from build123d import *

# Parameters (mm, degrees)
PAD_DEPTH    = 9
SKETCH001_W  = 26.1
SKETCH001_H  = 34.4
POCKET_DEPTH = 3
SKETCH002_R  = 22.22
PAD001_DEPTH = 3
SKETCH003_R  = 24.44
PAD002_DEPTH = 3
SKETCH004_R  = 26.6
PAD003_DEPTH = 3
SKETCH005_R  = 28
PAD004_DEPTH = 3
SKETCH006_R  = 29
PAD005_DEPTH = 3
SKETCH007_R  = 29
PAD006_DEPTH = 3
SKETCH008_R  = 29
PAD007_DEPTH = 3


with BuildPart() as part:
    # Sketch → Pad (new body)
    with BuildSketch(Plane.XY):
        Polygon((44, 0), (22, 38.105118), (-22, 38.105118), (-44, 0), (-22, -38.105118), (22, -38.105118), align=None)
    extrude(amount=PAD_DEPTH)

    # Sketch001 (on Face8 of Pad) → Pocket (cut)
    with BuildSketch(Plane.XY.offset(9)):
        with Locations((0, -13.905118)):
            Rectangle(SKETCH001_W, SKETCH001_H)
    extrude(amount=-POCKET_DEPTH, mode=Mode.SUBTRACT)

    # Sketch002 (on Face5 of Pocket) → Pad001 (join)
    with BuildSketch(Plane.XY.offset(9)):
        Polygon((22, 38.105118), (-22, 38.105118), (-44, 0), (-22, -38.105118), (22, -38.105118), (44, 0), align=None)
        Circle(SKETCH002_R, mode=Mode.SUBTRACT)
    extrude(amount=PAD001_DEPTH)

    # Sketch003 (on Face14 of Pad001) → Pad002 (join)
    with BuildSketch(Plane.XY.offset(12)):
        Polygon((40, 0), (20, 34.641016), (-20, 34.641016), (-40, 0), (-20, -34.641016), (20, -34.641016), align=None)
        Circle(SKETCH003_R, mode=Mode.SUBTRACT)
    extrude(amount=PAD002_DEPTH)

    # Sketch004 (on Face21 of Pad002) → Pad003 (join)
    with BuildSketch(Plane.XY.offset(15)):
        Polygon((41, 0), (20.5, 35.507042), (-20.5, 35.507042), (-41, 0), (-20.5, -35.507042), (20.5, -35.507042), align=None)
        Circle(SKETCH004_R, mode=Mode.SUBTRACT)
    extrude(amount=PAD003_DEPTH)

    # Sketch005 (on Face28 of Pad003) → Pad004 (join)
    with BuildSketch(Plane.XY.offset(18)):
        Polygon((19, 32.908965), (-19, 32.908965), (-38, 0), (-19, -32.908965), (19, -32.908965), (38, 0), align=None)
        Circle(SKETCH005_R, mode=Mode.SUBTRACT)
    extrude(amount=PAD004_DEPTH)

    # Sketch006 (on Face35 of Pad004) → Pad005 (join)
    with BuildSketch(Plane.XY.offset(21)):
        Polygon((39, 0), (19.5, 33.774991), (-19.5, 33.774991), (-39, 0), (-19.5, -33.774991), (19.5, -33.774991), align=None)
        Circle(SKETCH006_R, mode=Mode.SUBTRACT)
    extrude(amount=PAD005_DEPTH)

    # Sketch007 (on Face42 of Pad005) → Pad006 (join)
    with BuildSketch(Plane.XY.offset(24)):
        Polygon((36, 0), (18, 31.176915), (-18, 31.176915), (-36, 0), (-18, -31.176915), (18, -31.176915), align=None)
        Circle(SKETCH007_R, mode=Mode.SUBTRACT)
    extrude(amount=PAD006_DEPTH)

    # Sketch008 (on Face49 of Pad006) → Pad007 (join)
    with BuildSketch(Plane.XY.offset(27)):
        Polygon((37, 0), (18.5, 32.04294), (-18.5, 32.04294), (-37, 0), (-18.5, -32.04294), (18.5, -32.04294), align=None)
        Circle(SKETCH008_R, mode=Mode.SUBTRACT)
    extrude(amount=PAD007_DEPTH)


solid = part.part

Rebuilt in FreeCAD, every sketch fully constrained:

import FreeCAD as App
import Part
import Sketcher
from FreeCAD import Vector
Q = App.Units.Quantity


def add_polygon(sketch, points):
    """Adds a closed chain of lines whose ends are joined by coincident constraints."""
    first, n = sketch.GeometryCount, len(points)
    for a, b in zip(points, points[1:] + points[:1]):
        sketch.addGeometry(Part.LineSegment(App.Vector(*a, 0), App.Vector(*b, 0)), False)
    for i in range(n):
        sketch.addConstraint(Sketcher.Constraint("Coincident", first + i, 2, first + (i + 1) % n, 1))

doc = App.newDocument("Part")
body = doc.addObject("PartDesign::Body", "Body")

# Sketch on XY plane
sketch1 = body.newObject("Sketcher::SketchObject", "Sketch")
sketch1.AttachmentSupport = (doc.getObject("XY_Plane"), [""])
sketch1.MapMode = "FlatFace"
add_polygon(sketch1, [(44, 0), (22, 38.105118), (-22, 38.105118), (-44, 0), (-22, -38.105118), (22, -38.105118)])  # lines 0-5
sketch1.addConstraint([
    Sketcher.Constraint("Horizontal", 1),
    Sketcher.Constraint("Horizontal", 4),
    Sketcher.Constraint("Symmetric", 0, 2, 3, 2, -1, 1),
    Sketcher.Constraint("Symmetric", 2, 2, 5, 2, -1, 1),
    Sketcher.Constraint("PointOnObject", 2, 2, -1),
    Sketcher.Constraint("Parallel", 2, 5),
    Sketcher.Constraint("Vertical", 1, 2, 3, 2),
    Sketcher.Constraint("DistanceX", 1, 2, 1, 1, 44.0),
    Sketcher.Constraint("Angle", 0, Q("120 deg")),
    Sketcher.Constraint("Distance", 0, 44.0),
])
pad1 = body.newObject("PartDesign::Pad", "Pad")
pad1.Profile = sketch1
pad1.Length = 9

# Sketch on XY plane
sketch2 = body.newObject("Sketcher::SketchObject", "Sketch001")
sketch2.AttachmentSupport = (doc.getObject("XY_Plane"), [""])
sketch2.MapMode = "FlatFace"
sketch2.AttachmentOffset = App.Placement(Vector(0, 0, 9), App.Rotation())
add_polygon(sketch2, [(-13.05, 3.294882), (-13.05, -31.105118), (13.05, -31.105118), (13.05, 3.294882)])  # lines 0-3
sketch2.addConstraint([
    Sketcher.Constraint("Vertical", 0),
    Sketcher.Constraint("Horizontal", 1),
    Sketcher.Constraint("Vertical", 2),
    Sketcher.Constraint("Horizontal", 3),
    Sketcher.Constraint("DistanceX", 1, 1, 1, 2, 26.1),
    Sketcher.Constraint("DistanceY", 0, 2, 0, 1, 34.4),
    Sketcher.Constraint("DistanceX", 0, 2, -1, 1, 13.05),
    Sketcher.Constraint("DistanceY", 0, 2, -1, 1, 31.105118),
])
pocket1 = body.newObject("PartDesign::Pocket", "Pocket")
pocket1.Profile = sketch2
pocket1.Length = 3

# Sketch on XY plane
sketch3 = body.newObject("Sketcher::SketchObject", "Sketch002")
sketch3.AttachmentSupport = (doc.getObject("XY_Plane"), [""])
sketch3.MapMode = "FlatFace"
sketch3.AttachmentOffset = App.Placement(Vector(0, 0, 9), App.Rotation())
add_polygon(sketch3, [(22, 38.105118), (-22, 38.105118), (-44, 0), (-22, -38.105118), (22, -38.105118), (44, 0)])  # lines 0-5
sketch3.addGeometry(Part.Circle(Vector(0, 0, 0), Vector(0, 0, 1), 22.22), False)  # 6
sketch3.addConstraint([
    Sketcher.Constraint("Horizontal", 0),
    Sketcher.Constraint("Horizontal", 3),
    Sketcher.Constraint("Coincident", 6, 3, -1, 1),
    Sketcher.Constraint("Symmetric", 0, 2, 3, 2, -1, 1),
    Sketcher.Constraint("Symmetric", 1, 2, 4, 2, -1, 1),
    Sketcher.Constraint("PointOnObject", 1, 2, -1),
    Sketcher.Constraint("Parallel", 2, 5),
    Sketcher.Constraint("Vertical", 0, 2, 2, 2),
    Sketcher.Constraint("Diameter", 6, 44.44),
    Sketcher.Constraint("DistanceX", 0, 2, 0, 1, 44.0),
    Sketcher.Constraint("Angle", 1, Q("-120 deg")),
    Sketcher.Constraint("Distance", 1, 44.0),
])
pad2 = body.newObject("PartDesign::Pad", "Pad001")
pad2.Profile = sketch3
pad2.Length = 3

# Sketch on XY plane
sketch4 = body.newObject("Sketcher::SketchObject", "Sketch003")
sketch4.AttachmentSupport = (doc.getObject("XY_Plane"), [""])
sketch4.MapMode = "FlatFace"
sketch4.AttachmentOffset = App.Placement(Vector(0, 0, 12), App.Rotation())
add_polygon(sketch4, [(40, 0), (20, 34.641016), (-20, 34.641016), (-40, 0), (-20, -34.641016), (20, -34.641016)])  # lines 0-5
sketch4.addGeometry(Part.Circle(Vector(0, 0, 0), Vector(0, 0, 1), 24.44), False)  # 6
sketch4.addConstraint([
    Sketcher.Constraint("Horizontal", 1),
    Sketcher.Constraint("Horizontal", 4),
    Sketcher.Constraint("Coincident", 6, 3, -1, 1),
    Sketcher.Constraint("Symmetric", 0, 2, 3, 2, -1, 1),
    Sketcher.Constraint("Symmetric", 2, 2, 5, 2, -1, 1),
    Sketcher.Constraint("PointOnObject", 2, 2, -1),
    Sketcher.Constraint("Parallel", 2, 5),
    Sketcher.Constraint("Vertical", 1, 2, 3, 2),
    Sketcher.Constraint("Diameter", 6, 48.88),
    Sketcher.Constraint("DistanceX", 1, 2, 1, 1, 40.0),
    Sketcher.Constraint("Angle", 0, Q("120 deg")),
    Sketcher.Constraint("Distance", 0, 40.0),
])
pad3 = body.newObject("PartDesign::Pad", "Pad002")
pad3.Profile = sketch4
pad3.Length = 3

# Sketch on XY plane
sketch5 = body.newObject("Sketcher::SketchObject", "Sketch004")
sketch5.AttachmentSupport = (doc.getObject("XY_Plane"), [""])
sketch5.MapMode = "FlatFace"
sketch5.AttachmentOffset = App.Placement(Vector(0, 0, 15), App.Rotation())
add_polygon(sketch5, [(41, 0), (20.5, 35.507042), (-20.5, 35.507042), (-41, 0), (-20.5, -35.507042), (20.5, -35.507042)])  # lines 0-5
sketch5.addGeometry(Part.Circle(Vector(0, 0, 0), Vector(0, 0, 1), 26.6), False)  # 6
sketch5.addConstraint([
    Sketcher.Constraint("Horizontal", 1),
    Sketcher.Constraint("Horizontal", 4),
    Sketcher.Constraint("Coincident", 6, 3, -1, 1),
    Sketcher.Constraint("Symmetric", 0, 2, 3, 2, -1, 1),
    Sketcher.Constraint("Symmetric", 2, 2, 5, 2, -1, 1),
    Sketcher.Constraint("PointOnObject", 2, 2, -1),
    Sketcher.Constraint("Parallel", 2, 5),
    Sketcher.Constraint("Vertical", 1, 2, 3, 2),
    Sketcher.Constraint("Diameter", 6, 53.2),
    Sketcher.Constraint("DistanceX", 1, 2, 1, 1, 41.0),
    Sketcher.Constraint("Angle", 0, Q("120 deg")),
    Sketcher.Constraint("Distance", 0, 41.0),
])
pad4 = body.newObject("PartDesign::Pad", "Pad003")
pad4.Profile = sketch5
pad4.Length = 3

# Sketch on XY plane
sketch6 = body.newObject("Sketcher::SketchObject", "Sketch005")
sketch6.AttachmentSupport = (doc.getObject("XY_Plane"), [""])
sketch6.MapMode = "FlatFace"
sketch6.AttachmentOffset = App.Placement(Vector(0, 0, 18), App.Rotation())
add_polygon(sketch6, [(19, 32.908965), (-19, 32.908965), (-38, 0), (-19, -32.908965), (19, -32.908965), (38, 0)])  # lines 0-5
sketch6.addGeometry(Part.Circle(Vector(0, 0, 0), Vector(0, 0, 1), 28), False)  # 6
sketch6.addConstraint([
    Sketcher.Constraint("Horizontal", 0),
    Sketcher.Constraint("Horizontal", 3),
    Sketcher.Constraint("Coincident", 6, 3, -1, 1),
    Sketcher.Constraint("Symmetric", 0, 2, 3, 2, -1, 1),
    Sketcher.Constraint("Symmetric", 1, 2, 4, 2, -1, 1),
    Sketcher.Constraint("PointOnObject", 1, 2, -1),
    Sketcher.Constraint("Parallel", 2, 5),
    Sketcher.Constraint("Vertical", 0, 2, 2, 2),
    Sketcher.Constraint("Diameter", 6, 56.0),
    Sketcher.Constraint("DistanceX", 0, 2, 0, 1, 38.0),
    Sketcher.Constraint("Angle", 1, Q("-120 deg")),
    Sketcher.Constraint("Distance", 1, 38.0),
])
pad5 = body.newObject("PartDesign::Pad", "Pad004")
pad5.Profile = sketch6
pad5.Length = 3

# Sketch on XY plane
sketch7 = body.newObject("Sketcher::SketchObject", "Sketch006")
sketch7.AttachmentSupport = (doc.getObject("XY_Plane"), [""])
sketch7.MapMode = "FlatFace"
sketch7.AttachmentOffset = App.Placement(Vector(0, 0, 21), App.Rotation())
add_polygon(sketch7, [(39, 0), (19.5, 33.774991), (-19.5, 33.774991), (-39, 0), (-19.5, -33.774991), (19.5, -33.774991)])  # lines 0-5
sketch7.addGeometry(Part.Circle(Vector(0, 0, 0), Vector(0, 0, 1), 29), False)  # 6
sketch7.addConstraint([
    Sketcher.Constraint("Horizontal", 1),
    Sketcher.Constraint("Horizontal", 4),
    Sketcher.Constraint("Coincident", 6, 3, -1, 1),
    Sketcher.Constraint("Symmetric", 0, 2, 3, 2, -1, 1),
    Sketcher.Constraint("Symmetric", 2, 2, 5, 2, -1, 1),
    Sketcher.Constraint("PointOnObject", 2, 2, -1),
    Sketcher.Constraint("Parallel", 2, 5),
    Sketcher.Constraint("Vertical", 1, 2, 3, 2),
    Sketcher.Constraint("Diameter", 6, 58.0),
    Sketcher.Constraint("DistanceX", 1, 2, 1, 1, 39.0),
    Sketcher.Constraint("Angle", 0, Q("120 deg")),
    Sketcher.Constraint("Distance", 0, 39.0),
])
pad6 = body.newObject("PartDesign::Pad", "Pad005")
pad6.Profile = sketch7
pad6.Length = 3

# Sketch on XY plane
sketch8 = body.newObject("Sketcher::SketchObject", "Sketch007")
sketch8.AttachmentSupport = (doc.getObject("XY_Plane"), [""])
sketch8.MapMode = "FlatFace"
sketch8.AttachmentOffset = App.Placement(Vector(0, 0, 24), App.Rotation())
add_polygon(sketch8, [(36, 0), (18, 31.176915), (-18, 31.176915), (-36, 0), (-18, -31.176915), (18, -31.176915)])  # lines 0-5
sketch8.addGeometry(Part.Circle(Vector(0, 0, 0), Vector(0, 0, 1), 29), False)  # 6
sketch8.addConstraint([
    Sketcher.Constraint("Horizontal", 1),
    Sketcher.Constraint("Horizontal", 4),
    Sketcher.Constraint("Coincident", 6, 3, -1, 1),
    Sketcher.Constraint("Symmetric", 0, 2, 3, 2, -1, 1),
    Sketcher.Constraint("Symmetric", 2, 2, 5, 2, -1, 1),
    Sketcher.Constraint("PointOnObject", 2, 2, -1),
    Sketcher.Constraint("Parallel", 2, 5),
    Sketcher.Constraint("Vertical", 1, 2, 3, 2),
    Sketcher.Constraint("Diameter", 6, 58.0),
    Sketcher.Constraint("DistanceX", 1, 2, 1, 1, 36.0),
    Sketcher.Constraint("Angle", 0, Q("120 deg")),
    Sketcher.Constraint("Distance", 0, 36.0),
])
pad7 = body.newObject("PartDesign::Pad", "Pad006")
pad7.Profile = sketch8
pad7.Length = 3

# Sketch on XY plane
sketch9 = body.newObject("Sketcher::SketchObject", "Sketch008")
sketch9.AttachmentSupport = (doc.getObject("XY_Plane"), [""])
sketch9.MapMode = "FlatFace"
sketch9.AttachmentOffset = App.Placement(Vector(0, 0, 27), App.Rotation())
add_polygon(sketch9, [(37, 0), (18.5, 32.04294), (-18.5, 32.04294), (-37, 0), (-18.5, -32.04294), (18.5, -32.04294)])  # lines 0-5
sketch9.addGeometry(Part.Circle(Vector(0, 0, 0), Vector(0, 0, 1), 29), False)  # 6
sketch9.addConstraint([
    Sketcher.Constraint("Horizontal", 1),
    Sketcher.Constraint("Horizontal", 4),
    Sketcher.Constraint("Coincident", 6, 3, -1, 1),
    Sketcher.Constraint("Symmetric", 0, 2, 3, 2, -1, 1),
    Sketcher.Constraint("Symmetric", 2, 2, 5, 2, -1, 1),
    Sketcher.Constraint("PointOnObject", 2, 2, -1),
    Sketcher.Constraint("Parallel", 2, 5),
    Sketcher.Constraint("Vertical", 1, 2, 3, 2),
    Sketcher.Constraint("Diameter", 6, 58.0),
    Sketcher.Constraint("DistanceX", 1, 2, 1, 1, 37.0),
    Sketcher.Constraint("Angle", 0, Q("120 deg")),
    Sketcher.Constraint("Distance", 0, 37.0),
])
pad8 = body.newObject("PartDesign::Pad", "Pad007")
pad8.Profile = sketch9
pad8.Length = 3

doc.recompute()
